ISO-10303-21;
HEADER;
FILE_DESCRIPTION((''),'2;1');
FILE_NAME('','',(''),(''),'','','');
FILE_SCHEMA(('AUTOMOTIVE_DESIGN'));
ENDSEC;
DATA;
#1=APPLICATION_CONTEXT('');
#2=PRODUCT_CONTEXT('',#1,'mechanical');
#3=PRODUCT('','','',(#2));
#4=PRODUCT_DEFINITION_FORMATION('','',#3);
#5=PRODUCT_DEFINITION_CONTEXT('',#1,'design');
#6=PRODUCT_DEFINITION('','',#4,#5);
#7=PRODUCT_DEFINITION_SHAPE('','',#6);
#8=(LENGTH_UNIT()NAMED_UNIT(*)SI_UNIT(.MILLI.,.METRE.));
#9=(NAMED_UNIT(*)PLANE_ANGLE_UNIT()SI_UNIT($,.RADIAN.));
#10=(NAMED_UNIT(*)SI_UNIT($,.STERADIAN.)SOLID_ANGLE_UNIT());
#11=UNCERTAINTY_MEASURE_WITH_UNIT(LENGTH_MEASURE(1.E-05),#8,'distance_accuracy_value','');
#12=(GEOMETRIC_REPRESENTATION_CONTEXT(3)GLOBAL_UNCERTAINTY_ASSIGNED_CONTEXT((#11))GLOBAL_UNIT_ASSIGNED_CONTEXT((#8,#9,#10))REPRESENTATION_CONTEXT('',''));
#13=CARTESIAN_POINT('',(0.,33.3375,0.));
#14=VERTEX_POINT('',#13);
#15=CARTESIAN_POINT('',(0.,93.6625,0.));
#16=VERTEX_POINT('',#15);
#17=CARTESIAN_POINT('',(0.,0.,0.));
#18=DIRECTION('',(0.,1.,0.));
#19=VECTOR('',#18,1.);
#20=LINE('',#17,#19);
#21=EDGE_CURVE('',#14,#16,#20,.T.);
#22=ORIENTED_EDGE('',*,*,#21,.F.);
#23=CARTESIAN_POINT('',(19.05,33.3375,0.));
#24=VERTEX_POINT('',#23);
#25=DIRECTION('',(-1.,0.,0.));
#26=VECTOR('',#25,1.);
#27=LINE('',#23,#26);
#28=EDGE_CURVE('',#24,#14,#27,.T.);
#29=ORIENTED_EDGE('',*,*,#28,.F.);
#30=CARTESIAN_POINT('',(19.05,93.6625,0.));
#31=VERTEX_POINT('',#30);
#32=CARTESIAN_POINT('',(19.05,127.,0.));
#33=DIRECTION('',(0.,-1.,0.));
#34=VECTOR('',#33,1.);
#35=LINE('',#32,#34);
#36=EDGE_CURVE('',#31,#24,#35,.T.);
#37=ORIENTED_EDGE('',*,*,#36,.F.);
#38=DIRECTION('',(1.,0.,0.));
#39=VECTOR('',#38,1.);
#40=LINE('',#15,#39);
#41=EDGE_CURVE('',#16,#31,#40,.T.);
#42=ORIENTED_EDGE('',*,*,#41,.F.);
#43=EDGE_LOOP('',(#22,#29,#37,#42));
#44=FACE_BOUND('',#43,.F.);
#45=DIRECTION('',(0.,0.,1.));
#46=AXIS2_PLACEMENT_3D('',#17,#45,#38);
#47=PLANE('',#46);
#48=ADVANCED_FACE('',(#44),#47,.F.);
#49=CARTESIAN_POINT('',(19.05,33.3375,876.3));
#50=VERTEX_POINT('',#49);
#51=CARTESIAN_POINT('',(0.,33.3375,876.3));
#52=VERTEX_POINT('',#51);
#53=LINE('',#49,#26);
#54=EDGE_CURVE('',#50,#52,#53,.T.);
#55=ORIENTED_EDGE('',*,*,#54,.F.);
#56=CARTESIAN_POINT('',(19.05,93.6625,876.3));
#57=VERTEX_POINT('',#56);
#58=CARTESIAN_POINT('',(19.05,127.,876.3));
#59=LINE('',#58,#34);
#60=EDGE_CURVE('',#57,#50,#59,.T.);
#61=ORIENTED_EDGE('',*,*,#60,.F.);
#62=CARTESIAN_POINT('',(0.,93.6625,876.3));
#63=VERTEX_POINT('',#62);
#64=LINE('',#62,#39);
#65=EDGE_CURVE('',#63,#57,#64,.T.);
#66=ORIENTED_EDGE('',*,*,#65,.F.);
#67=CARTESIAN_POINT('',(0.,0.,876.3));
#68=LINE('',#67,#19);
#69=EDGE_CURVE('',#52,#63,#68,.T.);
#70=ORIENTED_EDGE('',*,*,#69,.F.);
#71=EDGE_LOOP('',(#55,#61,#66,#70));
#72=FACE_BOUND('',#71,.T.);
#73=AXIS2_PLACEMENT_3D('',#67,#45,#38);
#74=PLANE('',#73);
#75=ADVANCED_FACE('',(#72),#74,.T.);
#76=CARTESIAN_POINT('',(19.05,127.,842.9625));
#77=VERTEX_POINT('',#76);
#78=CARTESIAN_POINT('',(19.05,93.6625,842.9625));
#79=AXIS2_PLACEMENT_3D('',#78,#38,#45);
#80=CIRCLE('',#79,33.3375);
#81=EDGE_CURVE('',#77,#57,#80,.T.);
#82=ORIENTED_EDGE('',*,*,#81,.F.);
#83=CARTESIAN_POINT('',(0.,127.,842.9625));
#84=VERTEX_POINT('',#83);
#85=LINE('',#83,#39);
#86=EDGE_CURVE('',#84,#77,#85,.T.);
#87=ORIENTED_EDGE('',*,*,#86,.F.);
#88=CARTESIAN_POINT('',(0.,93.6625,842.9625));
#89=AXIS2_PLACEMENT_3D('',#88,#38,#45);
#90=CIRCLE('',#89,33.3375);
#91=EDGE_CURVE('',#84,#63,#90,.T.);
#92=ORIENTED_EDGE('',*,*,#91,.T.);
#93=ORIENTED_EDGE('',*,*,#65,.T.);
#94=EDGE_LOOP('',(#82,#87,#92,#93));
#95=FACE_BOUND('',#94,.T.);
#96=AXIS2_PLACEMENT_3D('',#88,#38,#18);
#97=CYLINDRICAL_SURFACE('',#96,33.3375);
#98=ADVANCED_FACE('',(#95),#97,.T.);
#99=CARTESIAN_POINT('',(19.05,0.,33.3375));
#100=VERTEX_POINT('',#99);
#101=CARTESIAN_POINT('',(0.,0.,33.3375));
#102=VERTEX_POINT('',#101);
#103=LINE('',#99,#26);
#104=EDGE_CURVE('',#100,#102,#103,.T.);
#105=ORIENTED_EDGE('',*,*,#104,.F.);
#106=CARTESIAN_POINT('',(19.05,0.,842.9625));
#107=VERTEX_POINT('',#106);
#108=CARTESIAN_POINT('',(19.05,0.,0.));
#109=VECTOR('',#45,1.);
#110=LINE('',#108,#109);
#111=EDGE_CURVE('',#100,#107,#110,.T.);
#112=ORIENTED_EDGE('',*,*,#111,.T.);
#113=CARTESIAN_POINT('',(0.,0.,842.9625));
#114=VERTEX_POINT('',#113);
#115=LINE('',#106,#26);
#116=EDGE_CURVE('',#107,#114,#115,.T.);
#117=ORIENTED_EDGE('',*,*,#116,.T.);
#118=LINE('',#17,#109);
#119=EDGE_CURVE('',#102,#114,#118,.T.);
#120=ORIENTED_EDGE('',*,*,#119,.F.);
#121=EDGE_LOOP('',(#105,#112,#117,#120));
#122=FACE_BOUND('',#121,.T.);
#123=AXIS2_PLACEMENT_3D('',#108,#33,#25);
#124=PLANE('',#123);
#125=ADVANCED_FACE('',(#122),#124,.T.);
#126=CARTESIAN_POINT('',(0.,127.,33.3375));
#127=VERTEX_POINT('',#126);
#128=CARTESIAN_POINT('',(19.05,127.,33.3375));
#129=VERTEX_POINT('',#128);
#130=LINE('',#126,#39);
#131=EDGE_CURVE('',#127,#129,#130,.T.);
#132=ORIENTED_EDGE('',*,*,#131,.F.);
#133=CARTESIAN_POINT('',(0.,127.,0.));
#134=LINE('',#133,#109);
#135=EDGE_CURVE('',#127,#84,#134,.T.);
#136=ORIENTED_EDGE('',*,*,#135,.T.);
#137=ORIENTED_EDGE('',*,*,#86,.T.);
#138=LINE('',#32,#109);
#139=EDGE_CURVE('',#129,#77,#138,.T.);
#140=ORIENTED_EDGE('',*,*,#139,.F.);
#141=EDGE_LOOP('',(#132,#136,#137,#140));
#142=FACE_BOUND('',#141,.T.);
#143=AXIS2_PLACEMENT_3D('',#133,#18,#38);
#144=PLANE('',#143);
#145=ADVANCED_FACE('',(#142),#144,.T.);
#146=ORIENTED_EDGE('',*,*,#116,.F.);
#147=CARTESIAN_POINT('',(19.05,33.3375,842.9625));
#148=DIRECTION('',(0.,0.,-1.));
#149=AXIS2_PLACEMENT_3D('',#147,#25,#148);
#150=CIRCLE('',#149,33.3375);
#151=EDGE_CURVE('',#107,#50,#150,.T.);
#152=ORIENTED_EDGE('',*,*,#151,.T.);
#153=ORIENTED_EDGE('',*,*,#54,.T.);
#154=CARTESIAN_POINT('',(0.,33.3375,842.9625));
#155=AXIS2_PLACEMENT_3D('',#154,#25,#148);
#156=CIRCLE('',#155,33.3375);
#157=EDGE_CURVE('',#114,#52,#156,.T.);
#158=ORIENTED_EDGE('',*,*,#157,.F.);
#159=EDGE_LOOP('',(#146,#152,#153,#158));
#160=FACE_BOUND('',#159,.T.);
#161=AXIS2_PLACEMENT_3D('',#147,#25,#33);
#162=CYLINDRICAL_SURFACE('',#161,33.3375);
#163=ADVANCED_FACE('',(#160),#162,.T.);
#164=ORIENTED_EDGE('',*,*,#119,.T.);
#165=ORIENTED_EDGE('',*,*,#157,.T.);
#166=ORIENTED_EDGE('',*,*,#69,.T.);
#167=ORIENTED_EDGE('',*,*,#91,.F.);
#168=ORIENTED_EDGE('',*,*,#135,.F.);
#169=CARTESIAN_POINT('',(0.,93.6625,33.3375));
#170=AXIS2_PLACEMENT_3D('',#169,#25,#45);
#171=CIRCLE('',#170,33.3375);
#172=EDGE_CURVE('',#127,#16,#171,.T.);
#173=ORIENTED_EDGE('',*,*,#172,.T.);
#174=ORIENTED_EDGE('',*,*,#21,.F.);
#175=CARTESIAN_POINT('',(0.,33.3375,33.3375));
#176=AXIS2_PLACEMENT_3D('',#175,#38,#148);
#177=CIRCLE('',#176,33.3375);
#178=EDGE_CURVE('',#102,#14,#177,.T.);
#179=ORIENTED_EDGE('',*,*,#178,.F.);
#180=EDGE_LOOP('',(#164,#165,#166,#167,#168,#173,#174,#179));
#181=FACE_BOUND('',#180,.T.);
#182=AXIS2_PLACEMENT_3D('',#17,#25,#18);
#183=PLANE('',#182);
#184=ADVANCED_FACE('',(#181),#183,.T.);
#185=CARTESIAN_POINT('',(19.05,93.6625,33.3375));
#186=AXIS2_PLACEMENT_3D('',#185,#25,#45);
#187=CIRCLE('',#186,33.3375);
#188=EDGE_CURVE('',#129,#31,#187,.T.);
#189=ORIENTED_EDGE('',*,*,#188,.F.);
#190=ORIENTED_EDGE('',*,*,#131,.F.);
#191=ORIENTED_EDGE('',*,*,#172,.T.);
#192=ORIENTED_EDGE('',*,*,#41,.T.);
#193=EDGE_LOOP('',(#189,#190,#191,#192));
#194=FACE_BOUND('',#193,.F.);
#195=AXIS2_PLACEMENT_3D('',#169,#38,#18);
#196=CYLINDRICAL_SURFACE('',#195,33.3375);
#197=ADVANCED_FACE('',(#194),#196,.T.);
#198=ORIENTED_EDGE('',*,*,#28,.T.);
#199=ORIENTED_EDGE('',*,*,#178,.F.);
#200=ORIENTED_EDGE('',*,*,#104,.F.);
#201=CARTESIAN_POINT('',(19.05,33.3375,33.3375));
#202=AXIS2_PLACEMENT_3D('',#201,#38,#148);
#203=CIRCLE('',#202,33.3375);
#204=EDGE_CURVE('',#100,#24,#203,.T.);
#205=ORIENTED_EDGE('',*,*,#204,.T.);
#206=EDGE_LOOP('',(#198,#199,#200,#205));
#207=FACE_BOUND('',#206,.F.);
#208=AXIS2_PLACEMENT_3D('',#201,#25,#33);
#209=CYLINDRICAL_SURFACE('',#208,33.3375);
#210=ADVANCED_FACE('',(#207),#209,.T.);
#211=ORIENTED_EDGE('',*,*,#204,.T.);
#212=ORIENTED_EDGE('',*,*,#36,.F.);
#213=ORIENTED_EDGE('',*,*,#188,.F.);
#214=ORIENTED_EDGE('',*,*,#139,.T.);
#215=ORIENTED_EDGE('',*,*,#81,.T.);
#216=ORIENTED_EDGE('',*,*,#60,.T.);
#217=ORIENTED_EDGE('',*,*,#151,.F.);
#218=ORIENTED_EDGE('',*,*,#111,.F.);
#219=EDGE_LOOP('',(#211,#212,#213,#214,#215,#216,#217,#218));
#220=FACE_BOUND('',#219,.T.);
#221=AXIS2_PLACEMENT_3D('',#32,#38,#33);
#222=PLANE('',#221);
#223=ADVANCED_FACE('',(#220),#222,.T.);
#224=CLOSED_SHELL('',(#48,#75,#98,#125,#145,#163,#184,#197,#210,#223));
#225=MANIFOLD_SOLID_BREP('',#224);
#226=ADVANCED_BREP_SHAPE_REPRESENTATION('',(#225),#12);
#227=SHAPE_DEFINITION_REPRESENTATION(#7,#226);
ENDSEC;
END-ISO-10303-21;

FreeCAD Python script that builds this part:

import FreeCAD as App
import Part
import Sketcher
Q = App.Units.Quantity


def edges_at(feature, points):
    """Names of the edges that pass closest to the given points."""
    edges = feature.Shape.Edges
    near = lambda p: min(range(len(edges)), key=lambda i: edges[i].distToShape(Part.Vertex(*p))[0])
    return sorted({f"Edge{near(p) + 1}" for p in points})


def add_polygon(sketch, points):
    """Adds a closed chain of lines whose ends are joined by coincident constraints."""
    first, n = sketch.GeometryCount, len(points)
    for a, b in zip(points, points[1:] + points[:1]):
        sketch.addGeometry(Part.LineSegment(App.Vector(*a, 0), App.Vector(*b, 0)), False)
    for i in range(n):
        sketch.addConstraint(Sketcher.Constraint("Coincident", first + i, 2, first + (i + 1) % n, 1))

doc = App.newDocument("Part")
body = doc.addObject("PartDesign::Body", "Body")

# Sketch on XY plane
sketch1 = body.newObject("Sketcher::SketchObject", "Sketch")
sketch1.AttachmentSupport = (doc.getObject("XY_Plane"), [""])
sketch1.MapMode = "FlatFace"
add_polygon(sketch1, [(0, 127), (0, 0), (19, 0), (19, 127)])  # lines 0-3
sketch1.addConstraint([
    Sketcher.Constraint("Vertical", 0),
    Sketcher.Constraint("Horizontal", 1),
    Sketcher.Constraint("Vertical", 2),
    Sketcher.Constraint("Horizontal", 3),
    Sketcher.Constraint("Coincident", 0, 2, -1, 1),
    Sketcher.Constraint("DistanceY", 0, 2, 0, 1, Q("5 in")),
    Sketcher.Constraint("DistanceX", 1, 1, 1, 2, Q("0.75 in")),
])
pad1 = body.newObject("PartDesign::Pad", "Pad")
pad1.Profile = sketch1
pad1.Length = Q("34.5 in")
doc.recompute()

fillet = body.newObject("PartDesign::Fillet", "Fillet")
fillet.Base = (pad1, edges_at(pad1, [
    (9.525, 127, 876.3),
    (9.525, 0, 876.3),
    (9.525, 127, 0),
    (9.525, 0, 0),
]))
fillet.Radius = Q("1.3125 in")

doc.recompute()
